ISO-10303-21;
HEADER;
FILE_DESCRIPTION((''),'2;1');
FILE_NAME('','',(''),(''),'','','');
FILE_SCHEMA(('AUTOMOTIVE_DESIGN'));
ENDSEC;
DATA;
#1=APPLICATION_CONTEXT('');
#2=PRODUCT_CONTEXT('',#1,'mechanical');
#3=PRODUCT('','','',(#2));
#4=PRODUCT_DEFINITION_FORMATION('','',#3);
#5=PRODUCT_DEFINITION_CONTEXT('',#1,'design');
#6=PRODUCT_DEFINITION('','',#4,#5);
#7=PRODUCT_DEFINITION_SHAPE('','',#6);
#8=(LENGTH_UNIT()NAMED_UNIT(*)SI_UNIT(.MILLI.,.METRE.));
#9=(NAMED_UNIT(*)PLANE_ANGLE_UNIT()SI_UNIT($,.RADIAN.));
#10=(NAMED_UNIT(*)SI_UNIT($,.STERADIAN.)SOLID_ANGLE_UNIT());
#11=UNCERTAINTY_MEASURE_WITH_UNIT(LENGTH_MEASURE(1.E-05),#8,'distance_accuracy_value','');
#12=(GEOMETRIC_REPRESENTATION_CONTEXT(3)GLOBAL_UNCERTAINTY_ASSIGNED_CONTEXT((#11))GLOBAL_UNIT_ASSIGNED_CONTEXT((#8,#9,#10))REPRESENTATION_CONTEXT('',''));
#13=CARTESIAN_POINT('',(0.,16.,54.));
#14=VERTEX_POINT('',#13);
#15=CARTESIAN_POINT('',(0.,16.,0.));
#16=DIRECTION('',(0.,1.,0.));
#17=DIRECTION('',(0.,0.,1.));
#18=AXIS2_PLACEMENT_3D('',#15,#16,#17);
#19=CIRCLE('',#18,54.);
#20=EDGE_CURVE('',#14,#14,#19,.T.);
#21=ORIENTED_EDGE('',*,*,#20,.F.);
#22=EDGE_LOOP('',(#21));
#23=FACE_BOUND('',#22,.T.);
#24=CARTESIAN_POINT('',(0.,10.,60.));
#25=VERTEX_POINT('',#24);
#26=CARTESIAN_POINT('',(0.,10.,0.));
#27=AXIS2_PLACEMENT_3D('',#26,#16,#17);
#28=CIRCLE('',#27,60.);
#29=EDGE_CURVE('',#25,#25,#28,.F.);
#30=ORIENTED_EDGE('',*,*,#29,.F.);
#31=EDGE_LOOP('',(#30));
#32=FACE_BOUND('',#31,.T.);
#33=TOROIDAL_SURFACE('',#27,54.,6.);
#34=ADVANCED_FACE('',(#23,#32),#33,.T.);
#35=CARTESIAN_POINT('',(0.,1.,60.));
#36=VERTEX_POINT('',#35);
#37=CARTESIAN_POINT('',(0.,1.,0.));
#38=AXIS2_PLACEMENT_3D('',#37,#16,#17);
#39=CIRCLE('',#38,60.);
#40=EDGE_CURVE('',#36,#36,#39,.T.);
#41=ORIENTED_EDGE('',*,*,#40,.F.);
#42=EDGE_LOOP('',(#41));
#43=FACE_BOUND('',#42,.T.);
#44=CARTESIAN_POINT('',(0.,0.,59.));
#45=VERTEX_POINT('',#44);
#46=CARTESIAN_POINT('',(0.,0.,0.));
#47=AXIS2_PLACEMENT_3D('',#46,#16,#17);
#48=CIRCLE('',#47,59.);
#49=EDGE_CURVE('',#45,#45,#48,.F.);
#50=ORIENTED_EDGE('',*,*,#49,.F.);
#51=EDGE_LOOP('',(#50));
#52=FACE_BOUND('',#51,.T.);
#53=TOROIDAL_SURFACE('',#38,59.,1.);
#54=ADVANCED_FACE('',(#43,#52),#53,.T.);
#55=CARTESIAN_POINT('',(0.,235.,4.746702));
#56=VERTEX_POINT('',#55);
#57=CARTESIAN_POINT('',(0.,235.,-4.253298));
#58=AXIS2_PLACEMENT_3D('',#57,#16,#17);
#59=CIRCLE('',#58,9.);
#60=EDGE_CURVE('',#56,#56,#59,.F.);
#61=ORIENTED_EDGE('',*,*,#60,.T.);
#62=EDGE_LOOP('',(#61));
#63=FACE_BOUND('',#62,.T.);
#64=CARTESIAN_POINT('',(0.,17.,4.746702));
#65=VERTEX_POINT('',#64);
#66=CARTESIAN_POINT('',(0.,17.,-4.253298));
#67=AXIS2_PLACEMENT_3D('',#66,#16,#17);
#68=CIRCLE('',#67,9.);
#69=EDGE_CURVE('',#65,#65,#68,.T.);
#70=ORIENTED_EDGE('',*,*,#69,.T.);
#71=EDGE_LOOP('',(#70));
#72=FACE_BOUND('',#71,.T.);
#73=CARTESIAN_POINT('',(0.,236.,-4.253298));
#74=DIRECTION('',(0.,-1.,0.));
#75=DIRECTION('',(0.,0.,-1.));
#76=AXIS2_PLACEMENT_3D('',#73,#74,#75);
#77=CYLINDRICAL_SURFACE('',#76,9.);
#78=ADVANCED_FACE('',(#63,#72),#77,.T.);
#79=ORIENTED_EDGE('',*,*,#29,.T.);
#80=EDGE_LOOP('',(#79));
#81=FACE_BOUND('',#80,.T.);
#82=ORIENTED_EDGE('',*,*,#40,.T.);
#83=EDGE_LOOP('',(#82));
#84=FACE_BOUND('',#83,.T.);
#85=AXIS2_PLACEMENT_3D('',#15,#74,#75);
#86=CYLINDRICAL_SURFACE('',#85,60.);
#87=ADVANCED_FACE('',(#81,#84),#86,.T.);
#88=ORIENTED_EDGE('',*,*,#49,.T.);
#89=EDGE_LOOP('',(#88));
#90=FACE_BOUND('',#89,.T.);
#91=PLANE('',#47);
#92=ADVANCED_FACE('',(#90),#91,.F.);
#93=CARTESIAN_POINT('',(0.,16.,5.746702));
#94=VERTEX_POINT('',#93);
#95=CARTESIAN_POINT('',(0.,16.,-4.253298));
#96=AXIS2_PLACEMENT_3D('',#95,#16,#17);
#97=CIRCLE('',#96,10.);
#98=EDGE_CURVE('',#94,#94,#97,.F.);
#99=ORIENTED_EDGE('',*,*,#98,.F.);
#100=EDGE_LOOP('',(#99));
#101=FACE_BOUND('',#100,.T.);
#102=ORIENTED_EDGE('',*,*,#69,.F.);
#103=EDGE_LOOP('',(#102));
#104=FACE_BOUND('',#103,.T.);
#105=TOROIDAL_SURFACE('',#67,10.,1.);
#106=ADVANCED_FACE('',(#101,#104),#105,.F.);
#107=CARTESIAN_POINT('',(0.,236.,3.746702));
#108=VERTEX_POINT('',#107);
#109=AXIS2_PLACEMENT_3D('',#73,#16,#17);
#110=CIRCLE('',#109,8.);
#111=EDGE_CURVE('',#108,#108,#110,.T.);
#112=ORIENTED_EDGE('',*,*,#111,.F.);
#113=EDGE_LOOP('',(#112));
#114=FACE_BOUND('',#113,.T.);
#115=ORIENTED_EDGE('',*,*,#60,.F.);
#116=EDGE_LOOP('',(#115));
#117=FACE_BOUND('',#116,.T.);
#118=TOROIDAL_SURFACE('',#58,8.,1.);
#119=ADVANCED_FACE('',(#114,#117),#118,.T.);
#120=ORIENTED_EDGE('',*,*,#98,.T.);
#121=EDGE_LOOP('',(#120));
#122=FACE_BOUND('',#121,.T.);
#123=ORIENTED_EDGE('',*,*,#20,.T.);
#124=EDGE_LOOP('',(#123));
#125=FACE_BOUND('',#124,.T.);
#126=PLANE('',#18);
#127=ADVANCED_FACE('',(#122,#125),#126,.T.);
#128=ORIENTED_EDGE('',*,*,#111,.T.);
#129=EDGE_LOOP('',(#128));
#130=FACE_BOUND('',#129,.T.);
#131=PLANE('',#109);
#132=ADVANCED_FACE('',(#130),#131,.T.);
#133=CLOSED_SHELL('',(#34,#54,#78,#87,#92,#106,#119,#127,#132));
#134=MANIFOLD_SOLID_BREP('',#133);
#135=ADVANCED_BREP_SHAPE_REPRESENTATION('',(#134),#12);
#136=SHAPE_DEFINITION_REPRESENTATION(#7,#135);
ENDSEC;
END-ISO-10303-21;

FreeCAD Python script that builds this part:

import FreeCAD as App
import Part
import Sketcher


def edges_at(feature, points):
    """Names of the edges that pass closest to the given points."""
    edges = feature.Shape.Edges
    near = lambda p: min(range(len(edges)), key=lambda i: edges[i].distToShape(Part.Vertex(*p))[0])
    return sorted({f"Edge{near(p) + 1}" for p in points})

doc = App.newDocument("Part")
body = doc.addObject("PartDesign::Body", "Body")

sketch1 = body.newObject("Sketcher::SketchObject", "Sketch")
sketch1.AttachmentSupport = (doc.getObject("XZ_Plane"), [""])
sketch1.MapMode = "FlatFace"
sketch1.addGeometry(Part.Circle(App.Vector(0, 0, 0), App.Vector(0, 0, 1), 60), False)
sketch1.addConstraint([
    Sketcher.Constraint("Coincident", 0, 3, -1, 1),
    Sketcher.Constraint("Diameter", 0, 120.0),
])
pad1 = body.newObject("PartDesign::Pad", "Pad")
pad1.Profile = sketch1
pad1.Length = 16
pad1.Reversed = True

sketch2 = body.newObject("Sketcher::SketchObject", "Sketch001")
sketch2.AttachmentSupport = (doc.getObject("XZ_Plane"), [""])
sketch2.MapMode = "FlatFace"
sketch2.AttachmentOffset = App.Placement(App.Vector(0, 0, -16), App.Rotation())
sketch2.addGeometry(Part.Circle(App.Vector(0, -4, 0), App.Vector(0, 0, 1), 9), False)
sketch2.addConstraint([
    Sketcher.Constraint("PointOnObject", 0, 3, -2),
    Sketcher.Constraint("Diameter", 0, 18.0),
    Sketcher.Constraint("DistanceY", 0, 3, -1, 1, 4.253298),
])
pad2 = body.newObject("PartDesign::Pad", "Pad001")
pad2.Profile = sketch2
pad2.Length = 220
pad2.Reversed = True
doc.recompute()

fillet = body.newObject("PartDesign::Fillet", "Fillet")
fillet.Base = (pad2, edges_at(pad2, [(-60, 16, 0)]))
fillet.Radius = 6
doc.recompute()

fillet2 = body.newObject("PartDesign::Fillet", "Fillet001")
fillet2.Base = (fillet, edges_at(fillet, [(-60, 0, 0), (-9, 16, -4.253), (-9, 236, -4.253)]))
fillet2.Radius = 1

doc.recompute()
